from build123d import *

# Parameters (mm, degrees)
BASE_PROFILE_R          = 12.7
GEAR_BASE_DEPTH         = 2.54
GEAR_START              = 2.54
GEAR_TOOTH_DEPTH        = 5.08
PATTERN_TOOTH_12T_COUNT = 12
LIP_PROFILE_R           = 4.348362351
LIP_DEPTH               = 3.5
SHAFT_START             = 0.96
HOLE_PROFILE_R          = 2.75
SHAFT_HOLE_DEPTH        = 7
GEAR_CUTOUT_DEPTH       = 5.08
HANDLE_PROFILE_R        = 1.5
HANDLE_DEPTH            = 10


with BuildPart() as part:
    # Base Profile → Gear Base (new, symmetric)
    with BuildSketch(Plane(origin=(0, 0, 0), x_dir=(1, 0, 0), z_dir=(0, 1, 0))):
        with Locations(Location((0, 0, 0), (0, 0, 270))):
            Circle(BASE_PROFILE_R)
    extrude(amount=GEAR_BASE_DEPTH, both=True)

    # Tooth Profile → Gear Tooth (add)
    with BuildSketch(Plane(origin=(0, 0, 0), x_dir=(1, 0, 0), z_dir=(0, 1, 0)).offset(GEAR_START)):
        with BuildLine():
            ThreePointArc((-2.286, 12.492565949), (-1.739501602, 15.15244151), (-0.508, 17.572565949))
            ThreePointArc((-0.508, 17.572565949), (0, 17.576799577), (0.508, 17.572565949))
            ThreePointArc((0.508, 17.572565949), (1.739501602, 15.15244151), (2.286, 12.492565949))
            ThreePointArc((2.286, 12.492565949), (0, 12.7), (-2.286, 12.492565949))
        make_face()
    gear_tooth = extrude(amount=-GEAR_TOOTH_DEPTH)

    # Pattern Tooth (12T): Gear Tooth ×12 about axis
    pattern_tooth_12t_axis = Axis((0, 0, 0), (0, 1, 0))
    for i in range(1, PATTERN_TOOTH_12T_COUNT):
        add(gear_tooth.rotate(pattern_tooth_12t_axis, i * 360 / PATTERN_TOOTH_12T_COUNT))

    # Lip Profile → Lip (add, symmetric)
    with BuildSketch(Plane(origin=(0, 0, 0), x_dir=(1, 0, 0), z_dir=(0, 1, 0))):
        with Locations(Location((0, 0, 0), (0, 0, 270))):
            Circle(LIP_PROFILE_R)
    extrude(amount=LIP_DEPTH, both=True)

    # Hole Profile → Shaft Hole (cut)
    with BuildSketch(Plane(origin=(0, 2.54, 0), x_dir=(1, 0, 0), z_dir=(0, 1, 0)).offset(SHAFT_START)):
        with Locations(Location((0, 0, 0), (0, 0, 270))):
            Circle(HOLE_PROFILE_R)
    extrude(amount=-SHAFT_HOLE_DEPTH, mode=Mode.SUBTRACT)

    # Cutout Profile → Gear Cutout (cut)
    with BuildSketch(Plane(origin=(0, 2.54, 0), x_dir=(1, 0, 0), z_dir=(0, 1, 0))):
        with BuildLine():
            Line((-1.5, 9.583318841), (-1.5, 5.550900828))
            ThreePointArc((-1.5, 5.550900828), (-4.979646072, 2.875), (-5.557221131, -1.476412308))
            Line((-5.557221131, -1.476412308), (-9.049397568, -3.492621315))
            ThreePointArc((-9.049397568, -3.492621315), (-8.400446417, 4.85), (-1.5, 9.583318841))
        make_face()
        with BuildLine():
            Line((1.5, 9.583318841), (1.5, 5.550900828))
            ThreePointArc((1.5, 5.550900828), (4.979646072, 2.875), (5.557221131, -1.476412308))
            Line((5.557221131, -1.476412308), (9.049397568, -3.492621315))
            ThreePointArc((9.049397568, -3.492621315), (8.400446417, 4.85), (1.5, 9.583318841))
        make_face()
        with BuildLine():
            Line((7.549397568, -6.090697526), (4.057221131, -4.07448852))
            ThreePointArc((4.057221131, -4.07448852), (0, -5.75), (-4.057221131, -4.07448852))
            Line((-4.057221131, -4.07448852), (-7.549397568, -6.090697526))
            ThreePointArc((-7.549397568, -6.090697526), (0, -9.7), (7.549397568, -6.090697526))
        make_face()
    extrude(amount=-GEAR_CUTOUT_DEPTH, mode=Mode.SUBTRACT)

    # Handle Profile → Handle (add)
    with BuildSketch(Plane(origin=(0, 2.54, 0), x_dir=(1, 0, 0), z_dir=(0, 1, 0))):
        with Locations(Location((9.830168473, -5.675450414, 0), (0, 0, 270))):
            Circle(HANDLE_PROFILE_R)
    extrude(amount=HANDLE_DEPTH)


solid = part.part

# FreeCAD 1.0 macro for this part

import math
import FreeCAD as App
import Part
import Sketcher
from FreeCAD import Vector
Q = App.Units.Quantity

doc = App.newDocument("Part")
params = doc.addObject("Spreadsheet::Sheet", "Params")
for row, (alias, value) in enumerate([
    ("sketch1_diameter", "25.4 mm"),
    ("pad1_length", "5.08 mm"),
    ("sketch2_radius", "12.7 mm"),
    ("sketch2_radius2", "10.16 mm"),
    ("pad2_length", "5.08 mm"),
    ("pad3_length", "7 mm"),
    ("sketch4_diameter", "5.5 mm"),
    ("pocket1_length", "7 mm"),
    ("sketch5_radius", "9.7 mm"),
    ("sketch5_radius2", "5.75 mm"),
    ("pocket2_length", "5.08 mm"),
    ("sketch6_diameter", "3 mm"),
    ("pad4_length", "10 mm"),
], start=1):
    params.set(f"A{row}", alias)
    params.set(f"B{row}", "=" + value)
    params.setAlias(f"B{row}", alias)

body = doc.addObject("PartDesign::Body", "Body")

# Sketch on XZ plane
sketch1 = body.newObject("Sketcher::SketchObject", "Sketch")
sketch1.AttachmentSupport = (doc.getObject("XZ_Plane"), [""])
sketch1.MapMode = "FlatFace"
sketch1.addGeometry(Part.Circle(Vector(0, 0, 0), Vector(0, 0, 1), 13), False)
sketch1.addConstraint(Sketcher.Constraint("Coincident", 0, 3, -1, 1))
sketch1.addConstraint(Sketcher.Constraint("Diameter", 0, 25.4))
sketch1.setExpression("Constraints[1]", "Params.sketch1_diameter")
pad1 = body.newObject("PartDesign::Pad", "Pad")
pad1.Profile = sketch1
pad1.setExpression("Length", "Params.pad1_length")
pad1.Midplane = True

# Sketch on XZ plane
sketch2 = body.newObject("Sketcher::SketchObject", "Sketch001")
sketch2.AttachmentSupport = (doc.getObject("XZ_Plane"), [""])
sketch2.MapMode = "FlatFace"
sketch2.AttachmentOffset = App.Placement(Vector(0, 0, -2.54), App.Rotation())
sketch2.addGeometry(Part.ArcOfCircle(Part.Circle(Vector(7.9, -11.8, 0), Vector(0, 0, 1), 10.2), math.radians(-176), math.radians(-145)), False)
sketch2.addGeometry(Part.ArcOfCircle(Part.Circle(Vector(0, 0, 0), Vector(0, 0, 1), 12.7), math.radians(-100), math.radians(-80)), False)
sketch2.addGeometry(Part.ArcOfCircle(Part.Circle(Vector(-7.9, -11.8, 0), Vector(0, 0, 1), 10.2), math.radians(-35), math.radians(-4)), False)
sketch2.addGeometry(Part.ArcOfCircle(Part.Circle(Vector(0, 12.9, 0), Vector(0, 0, 1), 30.5), math.radians(-90.95), math.radians(-89.05)), False)
sketch2.addConstraint(Sketcher.Constraint("Coincident", 0, 1, 1, 1))
sketch2.addConstraint(Sketcher.Constraint("Coincident", 1, 2, 2, 2))
sketch2.addConstraint(Sketcher.Constraint("Coincident", 2, 1, 3, 2))
sketch2.addConstraint(Sketcher.Constraint("Coincident", 3, 1, 0, 2))
sketch2.addConstraint(Sketcher.Constraint("Coincident", 1, 3, -1, 1))
sketch2.addConstraint(Sketcher.Constraint("Equal", 0, 2))
sketch2.addConstraint(Sketcher.Constraint("Symmetric", 0, 3, 2, 3, -2))
sketch2.addConstraint(Sketcher.Constraint("PointOnObject", 3, 3, -2))
sketch2.addConstraint(Sketcher.Constraint("Radius", 1, 12.7))
sketch2.addConstraint(Sketcher.Constraint("Radius", 0, 10.16))
sketch2.addConstraint(Sketcher.Constraint("DistanceY", 2, 1, 1, 2, 5.08))
sketch2.addConstraint(Sketcher.Constraint("DistanceX", 0, 1, -1, 1, 2.286))
sketch2.addConstraint(Sketcher.Constraint("DistanceX", -1, 1, 2, 1, 0.508))
sketch2.addConstraint(Sketcher.Constraint("Radius", 3, 30.479995))
sketch2.setExpression("Constraints[8]", "Params.sketch2_radius")
sketch2.setExpression("Constraints[9]", "Params.sketch2_radius2")
pad2 = body.newObject("PartDesign::Pad", "Pad001")
pad2.Profile = sketch2
pad2.setExpression("Length", "Params.pad2_length")
doc.recompute()

polarpattern = body.newObject("PartDesign::PolarPattern", "PolarPattern")
polarpattern.Originals = [pad2]
polarpattern.Axis = (doc.getObject("Y_Axis"), [""])
polarpattern.Angle = 360
polarpattern.Occurrences = 12
body.Tip = polarpattern

# Sketch on XZ plane
sketch3 = body.newObject("Sketcher::SketchObject", "Sketch002")
sketch3.AttachmentSupport = (doc.getObject("XZ_Plane"), [""])
sketch3.MapMode = "FlatFace"
sketch3.addGeometry(Part.Circle(Vector(0, 0, 0), Vector(0, 0, 1), 4.3), False)
sketch3.addConstraint(Sketcher.Constraint("Coincident", 0, 3, -1, 1))
sketch3.addConstraint(Sketcher.Constraint("Diameter", 0, 8.696725))
pad3 = body.newObject("PartDesign::Pad", "Pad002")
pad3.Profile = sketch3
pad3.setExpression("Length", "Params.pad3_length")
pad3.Midplane = True

# Sketch on XZ plane
sketch4 = body.newObject("Sketcher::SketchObject", "Sketch003")
sketch4.AttachmentSupport = (doc.getObject("XZ_Plane"), [""])
sketch4.MapMode = "FlatFace"
sketch4.AttachmentOffset = App.Placement(Vector(0, 0, -3.5), App.Rotation())
sketch4.addGeometry(Part.Circle(Vector(0, 0, 0), Vector(0, 0, 1), 2.8), False)
sketch4.addConstraint(Sketcher.Constraint("Coincident", 0, 3, -1, 1))
sketch4.addConstraint(Sketcher.Constraint("Diameter", 0, 5.5))
sketch4.setExpression("Constraints[1]", "Params.sketch4_diameter")
pocket1 = body.newObject("PartDesign::Pocket", "Pocket")
pocket1.Profile = sketch4
pocket1.setExpression("Length", "Params.pocket1_length")
pocket1.Reversed = True

# Sketch on XZ plane
sketch5 = body.newObject("Sketcher::SketchObject", "Sketch004")
sketch5.AttachmentSupport = (doc.getObject("XZ_Plane"), [""])
sketch5.MapMode = "FlatFace"
sketch5.AttachmentOffset = App.Placement(Vector(0, 0, -2.54), App.Rotation())
sketch5.addGeometry(Part.LineSegment(Vector(-1.5, -5.6, 0), Vector(-1.5, -9.6, 0)), False)
sketch5.addGeometry(Part.ArcOfCircle(Part.Circle(Vector(0, 0, 0), Vector(0, 0, 1), 9.7), math.radians(159), math.radians(261)), False)
sketch5.addGeometry(Part.LineSegment(Vector(-9, 3.5, 0), Vector(-5.6, 1.5, 0)), False)
sketch5.addGeometry(Part.ArcOfCircle(Part.Circle(Vector(0, 0, 0), Vector(0, 0, 1), 5.8), math.radians(165), math.radians(255)), False)
sketch5.addGeometry(Part.LineSegment(Vector(1.5, -9.6, 0), Vector(1.5, -5.6, 0)), False)
sketch5.addGeometry(Part.ArcOfCircle(Part.Circle(Vector(0, 0, 0), Vector(0, 0, 1), 5.8), math.radians(-75), math.radians(15)), False)
sketch5.addGeometry(Part.LineSegment(Vector(5.6, 1.5, 0), Vector(9, 3.5, 0)), False)
sketch5.addGeometry(Part.ArcOfCircle(Part.Circle(Vector(0, 0, 0), Vector(0, 0, 1), 9.7), math.radians(-81), math.radians(21)), False)
sketch5.addGeometry(Part.LineSegment(Vector(7.5, 6.1, 0), Vector(4.1, 4.1, 0)), False)
sketch5.addGeometry(Part.ArcOfCircle(Part.Circle(Vector(0, 0, 0), Vector(0, 0, 1), 5.8), math.radians(45), math.radians(135)), False)
sketch5.addGeometry(Part.LineSegment(Vector(-4.1, 4.1, 0), Vector(-7.5, 6.1, 0)), False)
sketch5.addGeometry(Part.ArcOfCircle(Part.Circle(Vector(0, 0, 0), Vector(0, 0, 1), 9.7), math.radians(39), math.radians(141)), False)
sketch5.addConstraint(Sketcher.Constraint("Coincident", 0, 2, 1, 2))
sketch5.addConstraint(Sketcher.Constraint("Coincident", 1, 1, 2, 1))
sketch5.addConstraint(Sketcher.Constraint("Coincident", 2, 2, 3, 1))
sketch5.addConstraint(Sketcher.Constraint("Coincident", 3, 2, 0, 1))
sketch5.addConstraint(Sketcher.Constraint("Coincident", 4, 2, 5, 1))
sketch5.addConstraint(Sketcher.Constraint("Coincident", 5, 2, 6, 1))
sketch5.addConstraint(Sketcher.Constraint("Coincident", 6, 2, 7, 2))
sketch5.addConstraint(Sketcher.Constraint("Coincident", 7, 1, 4, 1))
sketch5.addConstraint(Sketcher.Constraint("Coincident", 8, 2, 9, 1))
sketch5.addConstraint(Sketcher.Constraint("Coincident", 9, 2, 10, 1))
sketch5.addConstraint(Sketcher.Constraint("Coincident", 10, 2, 11, 2))
sketch5.addConstraint(Sketcher.Constraint("Coincident", 11, 1, 8, 1))
sketch5.addConstraint(Sketcher.Constraint("Vertical", 0))
sketch5.addConstraint(Sketcher.Constraint("Vertical", 4))
sketch5.addConstraint(Sketcher.Constraint("Coincident", 1, 3, -1, 1))
sketch5.addConstraint(Sketcher.Constraint("Coincident", 3, 3, -1, 1))
sketch5.addConstraint(Sketcher.Constraint("Coincident", 5, 3, -1, 1))
sketch5.addConstraint(Sketcher.Constraint("Coincident", 7, 3, -1, 1))
sketch5.addConstraint(Sketcher.Constraint("Coincident", 9, 3, -1, 1))
sketch5.addConstraint(Sketcher.Constraint("Coincident", 11, 3, -1, 1))
sketch5.addConstraint(Sketcher.Constraint("Equal", 3, 5))
sketch5.addConstraint(Sketcher.Constraint("Equal", 1, 7))
sketch5.addConstraint(Sketcher.Constraint("Equal", 5, 9))
sketch5.addConstraint(Sketcher.Constraint("Equal", 7, 11))
sketch5.addConstraint(Sketcher.Constraint("Parallel", 6, 8))
sketch5.addConstraint(Sketcher.Constraint("Parallel", 2, 10))
sketch5.addConstraint(Sketcher.Constraint("Horizontal", 3, 2, 4, 2))
sketch5.addConstraint(Sketcher.Constraint("Horizontal", 2, 2, 5, 2))
sketch5.addConstraint(Sketcher.Constraint("Horizontal", 1, 1, 6, 2))
sketch5.addConstraint(Sketcher.Constraint("Horizontal", 8, 2, 9, 2))
sketch5.addConstraint(Sketcher.Constraint("Equal", 6, 8))
sketch5.addConstraint(Sketcher.Constraint("Radius", 1, 9.7))
sketch5.addConstraint(Sketcher.Constraint("Angle", 2, Q("-30 deg")))
sketch5.addConstraint(Sketcher.Constraint("Radius", 3, 5.75))
sketch5.addConstraint(Sketcher.Constraint("DistanceX", 3, 2, 4, 2, 3.0))
sketch5.addConstraint(Sketcher.Constraint("DistanceX", 8, 2, 5, 2, 1.5))
sketch5.setExpression("Constraints[31]", "Params.sketch5_radius")
sketch5.setExpression("Constraints[33]", "Params.sketch5_radius2")
pocket2 = body.newObject("PartDesign::Pocket", "Pocket001")
pocket2.Profile = sketch5
pocket2.setExpression("Length", "Params.pocket2_length")
pocket2.Reversed = True

# Sketch on XZ plane
sketch6 = body.newObject("Sketcher::SketchObject", "Sketch005")
sketch6.AttachmentSupport = (doc.getObject("XZ_Plane"), [""])
sketch6.MapMode = "FlatFace"
sketch6.AttachmentOffset = App.Placement(Vector(0, 0, -2.54), App.Rotation())
sketch6.addGeometry(Part.Circle(Vector(9.8, 5.7, 0), Vector(0, 0, 1), 1.5), False)
sketch6.addConstraint(Sketcher.Constraint("Diameter", 0, 3.0))
sketch6.addConstraint(Sketcher.Constraint("DistanceX", -1, 1, 0, 3, 9.830168))
sketch6.addConstraint(Sketcher.Constraint("DistanceY", -1, 1, 0, 3, 5.67545))
sketch6.setExpression("Constraints[0]", "Params.sketch6_diameter")
pad4 = body.newObject("PartDesign::Pad", "Pad003")
pad4.Profile = sketch6
pad4.setExpression("Length", "Params.pad4_length")
pad4.Reversed = True

doc.recompute()
